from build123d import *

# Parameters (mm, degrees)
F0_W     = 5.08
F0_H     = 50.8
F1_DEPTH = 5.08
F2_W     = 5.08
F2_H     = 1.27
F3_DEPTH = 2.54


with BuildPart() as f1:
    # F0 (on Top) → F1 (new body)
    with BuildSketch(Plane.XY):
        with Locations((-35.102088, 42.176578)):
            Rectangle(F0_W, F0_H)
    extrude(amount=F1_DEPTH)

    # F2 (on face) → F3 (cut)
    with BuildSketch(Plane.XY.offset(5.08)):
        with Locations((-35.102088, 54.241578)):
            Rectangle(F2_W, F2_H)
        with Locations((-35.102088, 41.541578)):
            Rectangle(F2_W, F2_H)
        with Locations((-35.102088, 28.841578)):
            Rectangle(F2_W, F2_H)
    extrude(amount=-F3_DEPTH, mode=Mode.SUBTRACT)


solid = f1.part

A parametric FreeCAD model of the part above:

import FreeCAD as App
import Part
import Sketcher
from FreeCAD import Vector
Q = App.Units.Quantity

doc = App.newDocument("Part")
body = doc.addObject("PartDesign::Body", "Body")

sketch1 = body.newObject("Sketcher::SketchObject", "Sketch")
sketch1.AttachmentSupport = (doc.getObject("XY_Plane"), [""])
sketch1.MapMode = "FlatFace"
sketch1.addGeometry(Part.LineSegment(Vector(-38, 68, 0), Vector(-38, 17, 0)), False)
sketch1.addGeometry(Part.LineSegment(Vector(-38, 17, 0), Vector(-33, 17, 0)), False)
sketch1.addGeometry(Part.LineSegment(Vector(-33, 17, 0), Vector(-33, 68, 0)), False)
sketch1.addGeometry(Part.LineSegment(Vector(-33, 68, 0), Vector(-38, 68, 0)), False)
sketch1.addConstraint(Sketcher.Constraint("Coincident", 0, 2, 1, 1))
sketch1.addConstraint(Sketcher.Constraint("Coincident", 1, 2, 2, 1))
sketch1.addConstraint(Sketcher.Constraint("Coincident", 2, 2, 3, 1))
sketch1.addConstraint(Sketcher.Constraint("Coincident", 3, 2, 0, 1))
sketch1.addConstraint(Sketcher.Constraint("Vertical", 0))
sketch1.addConstraint(Sketcher.Constraint("Horizontal", 1))
sketch1.addConstraint(Sketcher.Constraint("Vertical", 2))
sketch1.addConstraint(Sketcher.Constraint("Horizontal", 3))
sketch1.addConstraint(Sketcher.Constraint("DistanceY", 0, 2, 0, 1, Q("2 in")))
sketch1.addConstraint(Sketcher.Constraint("DistanceX", 1, 1, 1, 2, Q("0.2 in")))
sketch1.addConstraint(Sketcher.Constraint("DistanceY", -1, 1, 0, 2, 16.776578))
sketch1.addConstraint(Sketcher.Constraint("DistanceX", 1, 2, -1, 1, 32.562088))
pad1 = body.newObject("PartDesign::Pad", "Pad")
pad1.Profile = sketch1
pad1.Length = Q("0.2 in")

sketch2 = body.newObject("Sketcher::SketchObject", "Sketch001")
sketch2.AttachmentSupport = (doc.getObject("XY_Plane"), [""])
sketch2.MapMode = "FlatFace"
sketch2.AttachmentOffset = App.Placement(Vector(0, 0, 0.2 * 25.4), App.Rotation())
sketch2.addGeometry(Part.LineSegment(Vector(-37.6, 54.9, 0), Vector(-37.6, 53.6, 0)), False)
sketch2.addGeometry(Part.LineSegment(Vector(-37.6, 53.6, 0), Vector(-32.6, 53.6, 0)), False)
sketch2.addGeometry(Part.LineSegment(Vector(-32.6, 53.6, 0), Vector(-32.6, 54.9, 0)), False)
sketch2.addGeometry(Part.LineSegment(Vector(-32.6, 54.9, 0), Vector(-37.6, 54.9, 0)), False)
sketch2.addGeometry(Part.LineSegment(Vector(-37.6, 42.2, 0), Vector(-37.6, 40.9, 0)), False)
sketch2.addGeometry(Part.LineSegment(Vector(-37.6, 40.9, 0), Vector(-32.6, 40.9, 0)), False)
sketch2.addGeometry(Part.LineSegment(Vector(-32.6, 40.9, 0), Vector(-32.6, 42.2, 0)), False)
sketch2.addGeometry(Part.LineSegment(Vector(-32.6, 42.2, 0), Vector(-37.6, 42.2, 0)), False)
sketch2.addGeometry(Part.LineSegment(Vector(-37.6, 29.5, 0), Vector(-37.6, 28.2, 0)), False)
sketch2.addGeometry(Part.LineSegment(Vector(-37.6, 28.2, 0), Vector(-32.6, 28.2, 0)), False)
sketch2.addGeometry(Part.LineSegment(Vector(-32.6, 28.2, 0), Vector(-32.6, 29.5, 0)), False)
sketch2.addGeometry(Part.LineSegment(Vector(-32.6, 29.5, 0), Vector(-37.6, 29.5, 0)), False)
sketch2.addConstraint(Sketcher.Constraint("Coincident", 0, 2, 1, 1))
sketch2.addConstraint(Sketcher.Constraint("Coincident", 1, 2, 2, 1))
sketch2.addConstraint(Sketcher.Constraint("Coincident", 2, 2, 3, 1))
sketch2.addConstraint(Sketcher.Constraint("Coincident", 3, 2, 0, 1))
sketch2.addConstraint(Sketcher.Constraint("Coincident", 4, 2, 5, 1))
sketch2.addConstraint(Sketcher.Constraint("Coincident", 5, 2, 6, 1))
sketch2.addConstraint(Sketcher.Constraint("Coincident", 6, 2, 7, 1))
sketch2.addConstraint(Sketcher.Constraint("Coincident", 7, 2, 4, 1))
sketch2.addConstraint(Sketcher.Constraint("Coincident", 8, 2, 9, 1))
sketch2.addConstraint(Sketcher.Constraint("Coincident", 9, 2, 10, 1))
sketch2.addConstraint(Sketcher.Constraint("Coincident", 10, 2, 11, 1))
sketch2.addConstraint(Sketcher.Constraint("Coincident", 11, 2, 8, 1))
sketch2.addConstraint(Sketcher.Constraint("Vertical", 0))
sketch2.addConstraint(Sketcher.Constraint("Horizontal", 1))
sketch2.addConstraint(Sketcher.Constraint("Vertical", 2))
sketch2.addConstraint(Sketcher.Constraint("Horizontal", 3))
sketch2.addConstraint(Sketcher.Constraint("Vertical", 4))
sketch2.addConstraint(Sketcher.Constraint("Horizontal", 5))
sketch2.addConstraint(Sketcher.Constraint("Vertical", 6))
sketch2.addConstraint(Sketcher.Constraint("Horizontal", 7))
sketch2.addConstraint(Sketcher.Constraint("Vertical", 8))
sketch2.addConstraint(Sketcher.Constraint("Horizontal", 9))
sketch2.addConstraint(Sketcher.Constraint("Vertical", 10))
sketch2.addConstraint(Sketcher.Constraint("Horizontal", 11))
sketch2.addConstraint(Sketcher.Constraint("Vertical", 3, 2, 4, 2))
sketch2.addConstraint(Sketcher.Constraint("Vertical", 2, 2, 5, 2))
sketch2.addConstraint(Sketcher.Constraint("Vertical", 7, 2, 8, 2))
sketch2.addConstraint(Sketcher.Constraint("Vertical", 6, 2, 9, 2))
sketch2.addConstraint(Sketcher.Constraint("Equal", 2, 4))
sketch2.addConstraint(Sketcher.Constraint("Equal", 6, 8))
sketch2.addConstraint(Sketcher.Constraint("DistanceX", 1, 1, 1, 2, Q("0.2 in")))
sketch2.addConstraint(Sketcher.Constraint("DistanceY", 8, 2, 0, 2, Q("1 in")))
sketch2.addConstraint(Sketcher.Constraint("DistanceY", 0, 2, 0, 1, Q("0.05 in")))
sketch2.addConstraint(Sketcher.Constraint("DistanceY", 4, 2, 0, 2, Q("0.5 in")))
sketch2.addConstraint(Sketcher.Constraint("DistanceX", 1, 2, -1, 1, 32.562088))
sketch2.addConstraint(Sketcher.Constraint("DistanceY", -1, 1, 2, 2, 54.876578))
pocket1 = body.newObject("PartDesign::Pocket", "Pocket")
pocket1.Profile = sketch2
pocket1.Length = Q("0.1 in")

doc.recompute()
